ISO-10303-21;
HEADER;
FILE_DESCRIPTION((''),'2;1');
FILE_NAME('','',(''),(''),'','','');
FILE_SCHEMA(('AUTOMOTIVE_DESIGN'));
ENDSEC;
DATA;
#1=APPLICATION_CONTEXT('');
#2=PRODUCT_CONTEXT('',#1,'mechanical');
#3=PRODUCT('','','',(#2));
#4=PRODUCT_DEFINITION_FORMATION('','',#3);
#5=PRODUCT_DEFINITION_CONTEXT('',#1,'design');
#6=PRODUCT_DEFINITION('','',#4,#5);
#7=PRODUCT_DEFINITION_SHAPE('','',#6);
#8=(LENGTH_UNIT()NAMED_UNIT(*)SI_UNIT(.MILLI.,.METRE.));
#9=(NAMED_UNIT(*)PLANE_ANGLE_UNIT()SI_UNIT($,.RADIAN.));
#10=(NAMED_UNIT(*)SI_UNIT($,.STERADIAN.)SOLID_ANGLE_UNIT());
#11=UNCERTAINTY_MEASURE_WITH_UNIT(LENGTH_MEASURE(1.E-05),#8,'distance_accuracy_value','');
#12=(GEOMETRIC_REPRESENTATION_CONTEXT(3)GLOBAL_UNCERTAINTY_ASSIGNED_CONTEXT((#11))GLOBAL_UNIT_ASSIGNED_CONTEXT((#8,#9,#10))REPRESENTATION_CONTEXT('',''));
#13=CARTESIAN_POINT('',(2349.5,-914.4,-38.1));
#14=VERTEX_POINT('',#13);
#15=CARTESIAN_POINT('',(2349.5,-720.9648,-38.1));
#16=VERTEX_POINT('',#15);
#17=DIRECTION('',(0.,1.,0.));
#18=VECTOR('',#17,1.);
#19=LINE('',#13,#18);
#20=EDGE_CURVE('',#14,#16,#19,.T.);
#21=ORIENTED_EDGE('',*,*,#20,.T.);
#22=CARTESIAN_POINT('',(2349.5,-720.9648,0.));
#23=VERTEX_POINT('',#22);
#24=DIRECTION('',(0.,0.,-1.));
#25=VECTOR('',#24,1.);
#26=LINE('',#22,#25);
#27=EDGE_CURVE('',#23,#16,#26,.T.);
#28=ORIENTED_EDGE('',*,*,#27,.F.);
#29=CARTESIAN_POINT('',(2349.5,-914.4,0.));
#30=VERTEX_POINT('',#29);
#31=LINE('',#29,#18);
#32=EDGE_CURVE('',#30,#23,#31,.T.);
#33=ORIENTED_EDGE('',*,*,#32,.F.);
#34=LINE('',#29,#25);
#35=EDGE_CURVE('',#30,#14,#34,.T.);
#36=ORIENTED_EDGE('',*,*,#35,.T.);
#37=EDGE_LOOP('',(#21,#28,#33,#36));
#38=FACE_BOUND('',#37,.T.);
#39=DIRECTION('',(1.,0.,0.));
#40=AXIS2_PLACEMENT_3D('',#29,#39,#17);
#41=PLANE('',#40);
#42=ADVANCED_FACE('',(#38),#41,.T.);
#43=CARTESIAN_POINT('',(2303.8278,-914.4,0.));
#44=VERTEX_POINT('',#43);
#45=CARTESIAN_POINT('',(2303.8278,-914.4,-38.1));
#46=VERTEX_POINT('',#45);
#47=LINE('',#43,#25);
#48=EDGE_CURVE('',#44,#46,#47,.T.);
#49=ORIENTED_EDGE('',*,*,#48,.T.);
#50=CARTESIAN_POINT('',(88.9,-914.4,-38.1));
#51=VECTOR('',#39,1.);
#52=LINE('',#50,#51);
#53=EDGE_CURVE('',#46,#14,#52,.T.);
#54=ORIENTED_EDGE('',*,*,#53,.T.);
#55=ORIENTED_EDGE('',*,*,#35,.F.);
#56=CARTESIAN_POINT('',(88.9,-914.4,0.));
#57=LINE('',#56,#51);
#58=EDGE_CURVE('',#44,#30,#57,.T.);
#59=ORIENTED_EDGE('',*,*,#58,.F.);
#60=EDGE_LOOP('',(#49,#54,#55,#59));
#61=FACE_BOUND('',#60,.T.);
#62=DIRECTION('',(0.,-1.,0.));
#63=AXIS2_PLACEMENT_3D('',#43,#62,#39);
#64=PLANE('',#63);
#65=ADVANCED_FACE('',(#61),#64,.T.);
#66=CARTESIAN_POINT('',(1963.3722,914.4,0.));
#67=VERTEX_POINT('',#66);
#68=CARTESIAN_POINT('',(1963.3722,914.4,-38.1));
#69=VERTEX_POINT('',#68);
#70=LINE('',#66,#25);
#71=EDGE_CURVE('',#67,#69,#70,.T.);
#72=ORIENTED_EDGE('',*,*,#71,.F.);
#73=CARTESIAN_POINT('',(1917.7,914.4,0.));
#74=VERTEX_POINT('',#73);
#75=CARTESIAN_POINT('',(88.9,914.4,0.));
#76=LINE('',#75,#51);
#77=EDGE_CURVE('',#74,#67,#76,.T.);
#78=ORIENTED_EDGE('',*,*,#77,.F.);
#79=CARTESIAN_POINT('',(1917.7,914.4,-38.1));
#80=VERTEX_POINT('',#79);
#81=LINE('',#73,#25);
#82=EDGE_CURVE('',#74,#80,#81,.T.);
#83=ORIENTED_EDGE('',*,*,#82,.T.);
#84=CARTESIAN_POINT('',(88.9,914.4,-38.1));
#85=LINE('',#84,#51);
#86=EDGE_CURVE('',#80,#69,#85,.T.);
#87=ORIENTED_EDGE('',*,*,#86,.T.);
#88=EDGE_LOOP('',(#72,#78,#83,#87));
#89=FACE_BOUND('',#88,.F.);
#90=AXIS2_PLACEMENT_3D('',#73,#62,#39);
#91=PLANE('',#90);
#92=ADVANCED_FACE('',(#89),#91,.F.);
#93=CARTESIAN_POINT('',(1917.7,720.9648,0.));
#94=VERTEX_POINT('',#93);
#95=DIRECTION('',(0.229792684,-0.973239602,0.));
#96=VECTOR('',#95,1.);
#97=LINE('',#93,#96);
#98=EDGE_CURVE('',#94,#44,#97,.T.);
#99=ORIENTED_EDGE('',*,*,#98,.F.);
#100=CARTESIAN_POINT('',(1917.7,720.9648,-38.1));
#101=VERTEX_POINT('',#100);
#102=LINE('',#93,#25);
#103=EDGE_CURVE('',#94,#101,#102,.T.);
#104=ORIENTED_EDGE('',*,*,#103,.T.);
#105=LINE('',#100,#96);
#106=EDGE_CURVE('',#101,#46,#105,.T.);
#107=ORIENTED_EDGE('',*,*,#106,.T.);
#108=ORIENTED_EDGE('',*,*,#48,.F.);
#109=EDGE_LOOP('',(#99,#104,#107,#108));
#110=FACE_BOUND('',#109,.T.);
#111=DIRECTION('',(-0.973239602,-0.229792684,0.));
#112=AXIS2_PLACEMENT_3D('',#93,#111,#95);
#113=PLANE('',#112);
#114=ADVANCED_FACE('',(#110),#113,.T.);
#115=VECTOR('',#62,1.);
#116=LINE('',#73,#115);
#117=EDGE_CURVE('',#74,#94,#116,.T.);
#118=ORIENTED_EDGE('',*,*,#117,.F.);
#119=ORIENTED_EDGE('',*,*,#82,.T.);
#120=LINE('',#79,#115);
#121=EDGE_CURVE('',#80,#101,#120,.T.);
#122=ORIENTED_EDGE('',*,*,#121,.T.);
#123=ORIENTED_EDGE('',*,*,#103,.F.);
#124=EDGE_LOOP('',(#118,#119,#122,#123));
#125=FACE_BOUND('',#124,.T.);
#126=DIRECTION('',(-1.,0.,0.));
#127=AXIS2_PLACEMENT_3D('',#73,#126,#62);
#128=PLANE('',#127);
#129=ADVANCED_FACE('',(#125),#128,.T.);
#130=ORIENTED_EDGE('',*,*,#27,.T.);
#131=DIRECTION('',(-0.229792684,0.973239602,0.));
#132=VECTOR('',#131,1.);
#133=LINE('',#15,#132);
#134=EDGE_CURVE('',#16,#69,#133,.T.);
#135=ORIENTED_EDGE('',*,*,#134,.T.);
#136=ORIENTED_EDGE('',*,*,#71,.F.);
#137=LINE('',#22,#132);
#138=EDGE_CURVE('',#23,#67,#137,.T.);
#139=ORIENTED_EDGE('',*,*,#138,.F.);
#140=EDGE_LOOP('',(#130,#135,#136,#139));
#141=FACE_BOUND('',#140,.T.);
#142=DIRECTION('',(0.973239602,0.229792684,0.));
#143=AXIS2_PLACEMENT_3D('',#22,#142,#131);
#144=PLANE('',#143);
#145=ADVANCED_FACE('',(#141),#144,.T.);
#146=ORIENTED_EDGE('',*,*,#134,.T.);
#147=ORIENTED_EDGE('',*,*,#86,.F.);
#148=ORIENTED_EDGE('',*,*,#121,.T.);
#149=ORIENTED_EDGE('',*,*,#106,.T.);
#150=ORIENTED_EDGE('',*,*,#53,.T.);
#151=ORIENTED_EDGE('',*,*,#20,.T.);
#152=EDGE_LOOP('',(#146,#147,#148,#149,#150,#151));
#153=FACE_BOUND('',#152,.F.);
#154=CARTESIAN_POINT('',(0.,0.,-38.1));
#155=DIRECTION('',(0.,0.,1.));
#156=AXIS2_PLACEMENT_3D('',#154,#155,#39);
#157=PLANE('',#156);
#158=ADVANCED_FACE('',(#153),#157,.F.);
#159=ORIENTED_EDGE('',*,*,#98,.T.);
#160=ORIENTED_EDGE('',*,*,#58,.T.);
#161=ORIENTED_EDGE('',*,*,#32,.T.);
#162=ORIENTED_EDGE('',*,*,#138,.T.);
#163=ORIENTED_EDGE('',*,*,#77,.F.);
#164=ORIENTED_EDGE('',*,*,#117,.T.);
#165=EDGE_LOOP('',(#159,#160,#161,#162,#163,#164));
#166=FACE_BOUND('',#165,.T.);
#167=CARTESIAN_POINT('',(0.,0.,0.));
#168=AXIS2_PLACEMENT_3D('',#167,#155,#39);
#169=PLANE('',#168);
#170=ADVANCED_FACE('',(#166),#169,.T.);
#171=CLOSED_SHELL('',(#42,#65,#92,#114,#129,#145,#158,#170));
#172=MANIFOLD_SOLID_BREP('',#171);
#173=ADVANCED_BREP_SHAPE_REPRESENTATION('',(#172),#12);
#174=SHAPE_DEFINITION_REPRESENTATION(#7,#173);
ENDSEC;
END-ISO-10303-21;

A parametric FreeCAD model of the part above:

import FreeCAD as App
import Part
import Sketcher
Q = App.Units.Quantity

doc = App.newDocument("Part")
params = doc.addObject("Spreadsheet::Sheet", "Params")
for row, (alias, value) in enumerate([
    ("pad1_length", "1.5 in"),
], start=1):
    params.set(f"A{row}", alias)
    params.set(f"B{row}", "=" + value)
    params.setAlias(f"B{row}", alias)

body = doc.addObject("PartDesign::Body", "Body")

# Sketch on XY plane
sketch1 = body.newObject("Sketcher::SketchObject", "Sketch")
sketch1.AttachmentSupport = (doc.getObject("XY_Plane"), [""])
sketch1.MapMode = "FlatFace"
sketch1.addGeometry([
    Part.LineSegment(App.Vector(2303.8278, -914.4, 0), App.Vector(2349.5, -914.4, 0)),  # 0
    Part.LineSegment(App.Vector(2349.5, -914.4, 0), App.Vector(2349.5, -720.9648, 0)),  # 1
    Part.LineSegment(App.Vector(2349.5, -720.9648, 0), App.Vector(1963.3722, 914.4, 0)),  # 2
    Part.LineSegment(App.Vector(1963.3722, 914.4, 0), App.Vector(1917.7, 914.4, 0)),  # 3
    Part.LineSegment(App.Vector(1917.7, 914.4, 0), App.Vector(1917.7, 720.9648, 0)),  # 4
    Part.LineSegment(App.Vector(1917.7, 720.9648, 0), App.Vector(2303.8278, -914.4, 0)),  # 5
], False)
sketch1.addConstraint([
    Sketcher.Constraint("Coincident", 0, 2, 1, 1),
    Sketcher.Constraint("Coincident", 1, 2, 2, 1),
    Sketcher.Constraint("Coincident", 2, 2, 3, 1),
    Sketcher.Constraint("Coincident", 3, 2, 4, 1),
    Sketcher.Constraint("Coincident", 4, 2, 5, 1),
    Sketcher.Constraint("Coincident", 5, 2, 0, 1),
    Sketcher.Constraint("Horizontal", 0),
    Sketcher.Constraint("Vertical", 1),
    Sketcher.Constraint("Horizontal", 3),
    Sketcher.Constraint("Vertical", 4),
    Sketcher.Constraint("Parallel", 2, 5),
    Sketcher.Constraint("Equal", 0, 3),
    Sketcher.Constraint("DistanceY", 0, 2, -1, 1, Q("36 in")),
    Sketcher.Constraint("DistanceY", -1, 1, 2, 2, Q("36 in")),
    Sketcher.Constraint("DistanceX", 3, 2, 1, 2, Q("17 in")),
    Sketcher.Constraint("DistanceX", -1, 1, 0, 2, Q("92.5 in")),
    Sketcher.Constraint("DistanceX", 0, 1, 0, 2, Q("45.6722 mm")),
    Sketcher.Constraint("DistanceY", 1, 1, 1, 2, Q("193.4352 mm")),
])
pad1 = body.newObject("PartDesign::Pad", "Pad")
pad1.Profile = sketch1
pad1.setExpression("Length", "Params.pad1_length")
pad1.Reversed = True

doc.recompute()
